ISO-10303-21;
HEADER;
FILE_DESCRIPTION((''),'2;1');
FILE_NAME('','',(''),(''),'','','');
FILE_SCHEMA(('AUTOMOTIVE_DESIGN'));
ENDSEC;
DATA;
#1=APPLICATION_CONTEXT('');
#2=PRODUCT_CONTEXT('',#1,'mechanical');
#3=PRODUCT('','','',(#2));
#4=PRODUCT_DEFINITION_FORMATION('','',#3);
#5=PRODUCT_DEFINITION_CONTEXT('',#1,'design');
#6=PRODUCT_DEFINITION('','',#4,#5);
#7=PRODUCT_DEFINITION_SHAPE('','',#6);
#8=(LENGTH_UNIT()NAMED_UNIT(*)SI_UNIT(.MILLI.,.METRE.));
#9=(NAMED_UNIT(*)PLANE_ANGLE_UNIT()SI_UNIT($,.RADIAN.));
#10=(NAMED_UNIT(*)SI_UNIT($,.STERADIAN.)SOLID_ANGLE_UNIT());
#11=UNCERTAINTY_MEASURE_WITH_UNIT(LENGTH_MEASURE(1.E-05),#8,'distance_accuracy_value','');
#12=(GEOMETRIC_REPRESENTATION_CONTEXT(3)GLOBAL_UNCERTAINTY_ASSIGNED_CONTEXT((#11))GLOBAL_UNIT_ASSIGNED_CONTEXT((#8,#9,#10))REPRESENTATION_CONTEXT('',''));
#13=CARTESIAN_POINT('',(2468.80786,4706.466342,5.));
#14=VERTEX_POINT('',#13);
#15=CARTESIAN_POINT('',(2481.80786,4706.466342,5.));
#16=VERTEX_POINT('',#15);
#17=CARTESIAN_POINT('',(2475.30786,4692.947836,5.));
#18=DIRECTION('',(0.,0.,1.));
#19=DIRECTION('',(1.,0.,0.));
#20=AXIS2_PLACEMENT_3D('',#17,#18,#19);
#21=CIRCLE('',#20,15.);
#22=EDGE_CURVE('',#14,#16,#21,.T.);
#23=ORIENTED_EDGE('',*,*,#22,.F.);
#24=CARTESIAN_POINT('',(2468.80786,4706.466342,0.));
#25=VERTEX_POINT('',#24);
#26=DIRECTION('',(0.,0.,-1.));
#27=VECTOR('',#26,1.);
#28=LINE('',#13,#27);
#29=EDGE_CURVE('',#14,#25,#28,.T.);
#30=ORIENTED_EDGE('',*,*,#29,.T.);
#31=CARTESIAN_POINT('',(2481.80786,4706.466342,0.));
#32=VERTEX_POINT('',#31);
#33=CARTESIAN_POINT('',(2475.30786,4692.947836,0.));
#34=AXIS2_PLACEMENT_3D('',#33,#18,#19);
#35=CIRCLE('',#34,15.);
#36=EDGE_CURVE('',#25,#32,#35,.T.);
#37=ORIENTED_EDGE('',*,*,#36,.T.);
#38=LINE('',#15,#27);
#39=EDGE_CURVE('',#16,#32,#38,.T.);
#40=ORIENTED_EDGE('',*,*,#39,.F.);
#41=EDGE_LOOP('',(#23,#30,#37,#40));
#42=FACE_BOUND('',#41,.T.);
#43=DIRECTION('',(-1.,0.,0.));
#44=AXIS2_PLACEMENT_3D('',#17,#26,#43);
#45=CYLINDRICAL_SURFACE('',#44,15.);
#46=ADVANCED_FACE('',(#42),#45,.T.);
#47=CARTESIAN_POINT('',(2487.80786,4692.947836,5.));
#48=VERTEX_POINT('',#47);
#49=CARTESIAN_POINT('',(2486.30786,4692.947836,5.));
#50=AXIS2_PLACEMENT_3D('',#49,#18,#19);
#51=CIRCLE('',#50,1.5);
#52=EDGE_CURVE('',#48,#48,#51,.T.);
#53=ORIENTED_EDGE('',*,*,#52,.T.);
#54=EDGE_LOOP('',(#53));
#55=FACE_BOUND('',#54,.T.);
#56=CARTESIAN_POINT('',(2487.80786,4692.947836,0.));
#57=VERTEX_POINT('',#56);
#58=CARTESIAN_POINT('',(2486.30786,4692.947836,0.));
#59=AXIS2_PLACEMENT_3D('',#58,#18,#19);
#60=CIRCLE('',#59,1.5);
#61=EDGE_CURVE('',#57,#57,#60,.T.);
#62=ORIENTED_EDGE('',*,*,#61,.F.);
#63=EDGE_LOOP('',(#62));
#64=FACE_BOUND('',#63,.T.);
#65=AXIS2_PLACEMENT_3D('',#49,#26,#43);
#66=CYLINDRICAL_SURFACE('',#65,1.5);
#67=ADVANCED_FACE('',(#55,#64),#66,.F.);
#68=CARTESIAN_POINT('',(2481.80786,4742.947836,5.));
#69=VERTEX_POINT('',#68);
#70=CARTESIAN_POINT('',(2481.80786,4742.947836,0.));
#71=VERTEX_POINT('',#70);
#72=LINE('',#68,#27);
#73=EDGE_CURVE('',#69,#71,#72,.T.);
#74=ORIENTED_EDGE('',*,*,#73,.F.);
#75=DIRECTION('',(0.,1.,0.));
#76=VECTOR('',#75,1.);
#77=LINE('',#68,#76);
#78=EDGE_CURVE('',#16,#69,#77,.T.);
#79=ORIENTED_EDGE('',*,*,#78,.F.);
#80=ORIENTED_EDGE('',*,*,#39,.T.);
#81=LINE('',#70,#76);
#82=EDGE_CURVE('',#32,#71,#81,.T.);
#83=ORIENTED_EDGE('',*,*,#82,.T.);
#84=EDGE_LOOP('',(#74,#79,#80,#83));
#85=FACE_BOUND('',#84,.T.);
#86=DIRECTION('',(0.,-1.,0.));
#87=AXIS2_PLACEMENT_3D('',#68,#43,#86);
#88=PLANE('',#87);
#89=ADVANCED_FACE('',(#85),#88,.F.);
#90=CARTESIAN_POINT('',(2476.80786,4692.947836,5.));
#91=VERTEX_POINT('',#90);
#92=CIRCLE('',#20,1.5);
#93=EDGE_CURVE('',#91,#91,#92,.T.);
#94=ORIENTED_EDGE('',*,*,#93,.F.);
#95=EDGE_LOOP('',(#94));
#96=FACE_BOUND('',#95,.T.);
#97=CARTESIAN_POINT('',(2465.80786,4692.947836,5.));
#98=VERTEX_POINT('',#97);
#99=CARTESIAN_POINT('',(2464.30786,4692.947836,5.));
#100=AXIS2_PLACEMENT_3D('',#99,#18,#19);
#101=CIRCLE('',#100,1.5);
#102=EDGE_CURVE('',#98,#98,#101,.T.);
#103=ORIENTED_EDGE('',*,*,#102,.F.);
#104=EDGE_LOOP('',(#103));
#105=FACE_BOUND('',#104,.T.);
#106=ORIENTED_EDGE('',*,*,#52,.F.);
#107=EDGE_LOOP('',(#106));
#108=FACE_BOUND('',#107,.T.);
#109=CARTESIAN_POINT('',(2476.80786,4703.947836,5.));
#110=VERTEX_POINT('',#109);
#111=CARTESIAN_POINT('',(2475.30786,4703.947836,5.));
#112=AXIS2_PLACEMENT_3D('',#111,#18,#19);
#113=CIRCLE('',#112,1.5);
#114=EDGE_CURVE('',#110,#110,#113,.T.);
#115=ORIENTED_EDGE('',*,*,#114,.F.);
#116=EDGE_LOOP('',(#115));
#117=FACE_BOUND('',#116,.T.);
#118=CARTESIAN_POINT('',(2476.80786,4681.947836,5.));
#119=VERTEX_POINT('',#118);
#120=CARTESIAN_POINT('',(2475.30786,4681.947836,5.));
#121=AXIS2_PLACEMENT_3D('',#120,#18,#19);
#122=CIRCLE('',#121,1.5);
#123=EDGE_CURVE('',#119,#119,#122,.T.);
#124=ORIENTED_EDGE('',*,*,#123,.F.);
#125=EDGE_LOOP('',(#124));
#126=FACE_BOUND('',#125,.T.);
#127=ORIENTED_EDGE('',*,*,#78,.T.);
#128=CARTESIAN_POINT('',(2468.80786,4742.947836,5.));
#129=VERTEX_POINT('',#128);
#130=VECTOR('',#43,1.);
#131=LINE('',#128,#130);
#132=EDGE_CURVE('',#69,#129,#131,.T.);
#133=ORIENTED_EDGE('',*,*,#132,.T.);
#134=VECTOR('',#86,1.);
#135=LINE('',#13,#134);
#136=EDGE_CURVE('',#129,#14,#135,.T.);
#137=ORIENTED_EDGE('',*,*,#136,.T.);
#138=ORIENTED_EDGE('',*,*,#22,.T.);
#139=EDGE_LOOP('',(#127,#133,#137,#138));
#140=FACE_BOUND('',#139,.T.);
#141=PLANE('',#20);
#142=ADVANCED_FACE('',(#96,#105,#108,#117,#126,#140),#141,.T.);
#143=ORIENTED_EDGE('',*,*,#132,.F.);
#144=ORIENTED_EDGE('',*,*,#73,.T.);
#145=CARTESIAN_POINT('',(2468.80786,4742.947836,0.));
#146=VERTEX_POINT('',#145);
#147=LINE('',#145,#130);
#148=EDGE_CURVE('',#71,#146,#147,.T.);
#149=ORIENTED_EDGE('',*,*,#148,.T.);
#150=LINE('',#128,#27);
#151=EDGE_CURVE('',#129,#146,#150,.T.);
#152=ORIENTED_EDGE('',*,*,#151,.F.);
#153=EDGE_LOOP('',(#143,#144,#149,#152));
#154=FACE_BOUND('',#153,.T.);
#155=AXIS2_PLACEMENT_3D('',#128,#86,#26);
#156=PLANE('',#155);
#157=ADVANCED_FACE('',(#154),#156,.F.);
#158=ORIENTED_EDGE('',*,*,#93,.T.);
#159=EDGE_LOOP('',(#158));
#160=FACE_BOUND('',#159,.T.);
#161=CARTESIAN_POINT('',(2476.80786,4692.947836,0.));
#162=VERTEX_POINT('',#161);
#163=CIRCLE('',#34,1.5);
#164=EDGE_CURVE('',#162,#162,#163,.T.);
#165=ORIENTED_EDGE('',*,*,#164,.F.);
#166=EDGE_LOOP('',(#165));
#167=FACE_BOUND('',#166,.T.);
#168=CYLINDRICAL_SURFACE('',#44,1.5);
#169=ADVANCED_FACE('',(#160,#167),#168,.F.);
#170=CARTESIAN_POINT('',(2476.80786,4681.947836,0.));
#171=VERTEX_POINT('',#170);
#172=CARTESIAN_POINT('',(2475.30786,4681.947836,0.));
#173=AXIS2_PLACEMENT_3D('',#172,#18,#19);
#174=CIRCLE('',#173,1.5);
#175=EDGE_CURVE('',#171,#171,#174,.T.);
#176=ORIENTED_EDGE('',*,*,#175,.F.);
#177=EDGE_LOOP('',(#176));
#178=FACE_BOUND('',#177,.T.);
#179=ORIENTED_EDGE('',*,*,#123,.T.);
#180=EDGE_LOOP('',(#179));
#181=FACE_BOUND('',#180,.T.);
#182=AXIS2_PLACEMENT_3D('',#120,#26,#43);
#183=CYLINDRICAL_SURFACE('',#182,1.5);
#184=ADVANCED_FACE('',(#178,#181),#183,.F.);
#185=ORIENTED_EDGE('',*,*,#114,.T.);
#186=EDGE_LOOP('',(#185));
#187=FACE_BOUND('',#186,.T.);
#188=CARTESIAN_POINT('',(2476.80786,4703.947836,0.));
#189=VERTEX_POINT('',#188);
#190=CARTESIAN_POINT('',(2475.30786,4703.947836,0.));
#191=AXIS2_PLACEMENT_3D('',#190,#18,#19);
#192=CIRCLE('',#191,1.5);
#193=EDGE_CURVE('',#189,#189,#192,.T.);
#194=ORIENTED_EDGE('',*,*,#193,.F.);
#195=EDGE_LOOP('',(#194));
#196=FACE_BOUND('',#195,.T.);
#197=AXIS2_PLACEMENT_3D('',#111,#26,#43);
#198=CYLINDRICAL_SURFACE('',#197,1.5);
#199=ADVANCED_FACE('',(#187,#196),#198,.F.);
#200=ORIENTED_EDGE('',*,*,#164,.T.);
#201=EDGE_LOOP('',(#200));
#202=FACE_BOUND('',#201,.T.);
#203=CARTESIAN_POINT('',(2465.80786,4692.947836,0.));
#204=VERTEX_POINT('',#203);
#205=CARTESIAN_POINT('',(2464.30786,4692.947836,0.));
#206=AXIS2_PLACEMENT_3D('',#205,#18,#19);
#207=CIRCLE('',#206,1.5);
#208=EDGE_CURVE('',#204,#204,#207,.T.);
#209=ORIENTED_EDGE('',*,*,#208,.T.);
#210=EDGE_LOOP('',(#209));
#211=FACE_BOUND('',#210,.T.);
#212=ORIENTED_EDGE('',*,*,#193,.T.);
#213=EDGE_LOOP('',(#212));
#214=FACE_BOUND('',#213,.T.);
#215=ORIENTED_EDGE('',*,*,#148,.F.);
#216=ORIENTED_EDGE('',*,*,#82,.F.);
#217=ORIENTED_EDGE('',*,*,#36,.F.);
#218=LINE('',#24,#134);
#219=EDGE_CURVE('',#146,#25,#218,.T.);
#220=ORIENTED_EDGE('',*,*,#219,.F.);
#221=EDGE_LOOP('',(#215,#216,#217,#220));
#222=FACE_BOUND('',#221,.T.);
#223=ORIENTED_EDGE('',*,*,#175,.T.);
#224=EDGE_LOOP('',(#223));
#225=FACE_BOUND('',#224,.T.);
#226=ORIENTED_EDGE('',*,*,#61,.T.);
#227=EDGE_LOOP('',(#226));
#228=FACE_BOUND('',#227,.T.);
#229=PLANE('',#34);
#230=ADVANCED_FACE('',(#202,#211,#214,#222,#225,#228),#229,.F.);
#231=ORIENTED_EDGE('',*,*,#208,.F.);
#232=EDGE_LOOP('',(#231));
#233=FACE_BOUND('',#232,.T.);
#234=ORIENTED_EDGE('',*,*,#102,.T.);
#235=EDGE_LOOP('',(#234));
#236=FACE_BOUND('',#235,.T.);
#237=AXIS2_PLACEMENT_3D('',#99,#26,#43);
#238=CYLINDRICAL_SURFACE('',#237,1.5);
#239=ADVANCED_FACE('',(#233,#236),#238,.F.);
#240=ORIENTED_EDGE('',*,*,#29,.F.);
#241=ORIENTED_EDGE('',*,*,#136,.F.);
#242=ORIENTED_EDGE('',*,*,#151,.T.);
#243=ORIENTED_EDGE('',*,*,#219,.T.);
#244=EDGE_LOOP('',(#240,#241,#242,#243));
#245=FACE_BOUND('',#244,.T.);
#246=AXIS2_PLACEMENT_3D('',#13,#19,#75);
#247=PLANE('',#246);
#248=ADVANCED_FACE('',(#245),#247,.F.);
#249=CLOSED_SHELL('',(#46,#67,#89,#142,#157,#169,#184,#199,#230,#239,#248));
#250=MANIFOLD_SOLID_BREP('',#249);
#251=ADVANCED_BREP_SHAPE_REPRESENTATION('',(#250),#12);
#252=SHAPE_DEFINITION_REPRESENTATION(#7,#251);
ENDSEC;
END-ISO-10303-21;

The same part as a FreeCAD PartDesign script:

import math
import FreeCAD as App
import Part
import Sketcher
from FreeCAD import Vector
Q = App.Units.Quantity

doc = App.newDocument("Part")
body = doc.addObject("PartDesign::Body", "Body")

# Sketch on XY plane
sketch1 = body.newObject("Sketcher::SketchObject", "Sketch")
sketch1.AttachmentSupport = (doc.getObject("XY_Plane"), [""])
sketch1.MapMode = "FlatFace"
sketch1.addGeometry(Part.LineSegment(Vector(2468.8, 4742.9, 0), Vector(2468.8, 4706.5, 0)), False)
sketch1.addGeometry(Part.ArcOfCircle(Part.Circle(Vector(2475.3, 4692.9, 0), Vector(0, 0, 1), 15), math.radians(116), math.radians(424)), False)
sketch1.addGeometry(Part.LineSegment(Vector(2481.8, 4706.5, 0), Vector(2481.8, 4742.9, 0)), False)
sketch1.addGeometry(Part.LineSegment(Vector(2481.8, 4742.9, 0), Vector(2468.8, 4742.9, 0)), False)
sketch1.addGeometry(Part.Circle(Vector(2475.3, 4681.9, 0), Vector(0, 0, 1), 1.5), False)
sketch1.addGeometry(Part.Circle(Vector(2486.3, 4692.9, 0), Vector(0, 0, 1), 1.5), False)
sketch1.addGeometry(Part.Circle(Vector(2475.3, 4692.9, 0), Vector(0, 0, 1), 1.5), False)
sketch1.addGeometry(Part.Circle(Vector(2464.3, 4692.9, 0), Vector(0, 0, 1), 1.5), False)
sketch1.addGeometry(Part.Circle(Vector(2475.3, 4703.9, 0), Vector(0, 0, 1), 1.5), False)
sketch1.addConstraint(Sketcher.Constraint("Coincident", 0, 2, 1, 1))
sketch1.addConstraint(Sketcher.Constraint("Coincident", 1, 2, 2, 1))
sketch1.addConstraint(Sketcher.Constraint("Coincident", 2, 2, 3, 1))
sketch1.addConstraint(Sketcher.Constraint("Coincident", 3, 2, 0, 1))
sketch1.addConstraint(Sketcher.Constraint("Vertical", 0))
sketch1.addConstraint(Sketcher.Constraint("Vertical", 2))
sketch1.addConstraint(Sketcher.Constraint("Horizontal", 3))
sketch1.addConstraint(Sketcher.Constraint("Coincident", 6, 3, 1, 3))
sketch1.addConstraint(Sketcher.Constraint("Equal", 4, 5))
sketch1.addConstraint(Sketcher.Constraint("Equal", 5, 6))
sketch1.addConstraint(Sketcher.Constraint("Equal", 6, 7))
sketch1.addConstraint(Sketcher.Constraint("Equal", 7, 8))
sketch1.addConstraint(Sketcher.Constraint("Horizontal", 1, 3, 5, 3))
sketch1.addConstraint(Sketcher.Constraint("Horizontal", 6, 3, 7, 3))
sketch1.addConstraint(Sketcher.Constraint("Horizontal", 0, 2, 1, 2))
sketch1.addConstraint(Sketcher.Constraint("Vertical", 1, 3, 4, 3))
sketch1.addConstraint(Sketcher.Constraint("Vertical", 6, 3, 8, 3))
sketch1.addConstraint(Sketcher.Constraint("Diameter", 4, Q("3 mm")))
sketch1.addConstraint(Sketcher.Constraint("Radius", 1, Q("15 mm")))
sketch1.addConstraint(Sketcher.Constraint("DistanceX", 3, 2, 3, 1, Q("13 mm")))
sketch1.addConstraint(Sketcher.Constraint("DistanceY", 4, 3, 1, 3, Q("11 mm")))
sketch1.addConstraint(Sketcher.Constraint("DistanceX", 1, 3, 5, 3, Q("11 mm")))
sketch1.addConstraint(Sketcher.Constraint("DistanceX", 7, 3, 1, 3, Q("11 mm")))
sketch1.addConstraint(Sketcher.Constraint("DistanceY", 1, 3, 8, 3, Q("11 mm")))
sketch1.addConstraint(Sketcher.Constraint("DistanceY", 8, 3, 2, 2, Q("39 mm")))
sketch1.addConstraint(Sketcher.Constraint("DistanceX", -1, 1, 1, 3, Q("2475.30786 mm")))
sketch1.addConstraint(Sketcher.Constraint("DistanceY", -1, 1, 0, 2, Q("4706.466342 mm")))
pad1 = body.newObject("PartDesign::Pad", "Pad")
pad1.Profile = sketch1
pad1.Length = 5

doc.recompute()
